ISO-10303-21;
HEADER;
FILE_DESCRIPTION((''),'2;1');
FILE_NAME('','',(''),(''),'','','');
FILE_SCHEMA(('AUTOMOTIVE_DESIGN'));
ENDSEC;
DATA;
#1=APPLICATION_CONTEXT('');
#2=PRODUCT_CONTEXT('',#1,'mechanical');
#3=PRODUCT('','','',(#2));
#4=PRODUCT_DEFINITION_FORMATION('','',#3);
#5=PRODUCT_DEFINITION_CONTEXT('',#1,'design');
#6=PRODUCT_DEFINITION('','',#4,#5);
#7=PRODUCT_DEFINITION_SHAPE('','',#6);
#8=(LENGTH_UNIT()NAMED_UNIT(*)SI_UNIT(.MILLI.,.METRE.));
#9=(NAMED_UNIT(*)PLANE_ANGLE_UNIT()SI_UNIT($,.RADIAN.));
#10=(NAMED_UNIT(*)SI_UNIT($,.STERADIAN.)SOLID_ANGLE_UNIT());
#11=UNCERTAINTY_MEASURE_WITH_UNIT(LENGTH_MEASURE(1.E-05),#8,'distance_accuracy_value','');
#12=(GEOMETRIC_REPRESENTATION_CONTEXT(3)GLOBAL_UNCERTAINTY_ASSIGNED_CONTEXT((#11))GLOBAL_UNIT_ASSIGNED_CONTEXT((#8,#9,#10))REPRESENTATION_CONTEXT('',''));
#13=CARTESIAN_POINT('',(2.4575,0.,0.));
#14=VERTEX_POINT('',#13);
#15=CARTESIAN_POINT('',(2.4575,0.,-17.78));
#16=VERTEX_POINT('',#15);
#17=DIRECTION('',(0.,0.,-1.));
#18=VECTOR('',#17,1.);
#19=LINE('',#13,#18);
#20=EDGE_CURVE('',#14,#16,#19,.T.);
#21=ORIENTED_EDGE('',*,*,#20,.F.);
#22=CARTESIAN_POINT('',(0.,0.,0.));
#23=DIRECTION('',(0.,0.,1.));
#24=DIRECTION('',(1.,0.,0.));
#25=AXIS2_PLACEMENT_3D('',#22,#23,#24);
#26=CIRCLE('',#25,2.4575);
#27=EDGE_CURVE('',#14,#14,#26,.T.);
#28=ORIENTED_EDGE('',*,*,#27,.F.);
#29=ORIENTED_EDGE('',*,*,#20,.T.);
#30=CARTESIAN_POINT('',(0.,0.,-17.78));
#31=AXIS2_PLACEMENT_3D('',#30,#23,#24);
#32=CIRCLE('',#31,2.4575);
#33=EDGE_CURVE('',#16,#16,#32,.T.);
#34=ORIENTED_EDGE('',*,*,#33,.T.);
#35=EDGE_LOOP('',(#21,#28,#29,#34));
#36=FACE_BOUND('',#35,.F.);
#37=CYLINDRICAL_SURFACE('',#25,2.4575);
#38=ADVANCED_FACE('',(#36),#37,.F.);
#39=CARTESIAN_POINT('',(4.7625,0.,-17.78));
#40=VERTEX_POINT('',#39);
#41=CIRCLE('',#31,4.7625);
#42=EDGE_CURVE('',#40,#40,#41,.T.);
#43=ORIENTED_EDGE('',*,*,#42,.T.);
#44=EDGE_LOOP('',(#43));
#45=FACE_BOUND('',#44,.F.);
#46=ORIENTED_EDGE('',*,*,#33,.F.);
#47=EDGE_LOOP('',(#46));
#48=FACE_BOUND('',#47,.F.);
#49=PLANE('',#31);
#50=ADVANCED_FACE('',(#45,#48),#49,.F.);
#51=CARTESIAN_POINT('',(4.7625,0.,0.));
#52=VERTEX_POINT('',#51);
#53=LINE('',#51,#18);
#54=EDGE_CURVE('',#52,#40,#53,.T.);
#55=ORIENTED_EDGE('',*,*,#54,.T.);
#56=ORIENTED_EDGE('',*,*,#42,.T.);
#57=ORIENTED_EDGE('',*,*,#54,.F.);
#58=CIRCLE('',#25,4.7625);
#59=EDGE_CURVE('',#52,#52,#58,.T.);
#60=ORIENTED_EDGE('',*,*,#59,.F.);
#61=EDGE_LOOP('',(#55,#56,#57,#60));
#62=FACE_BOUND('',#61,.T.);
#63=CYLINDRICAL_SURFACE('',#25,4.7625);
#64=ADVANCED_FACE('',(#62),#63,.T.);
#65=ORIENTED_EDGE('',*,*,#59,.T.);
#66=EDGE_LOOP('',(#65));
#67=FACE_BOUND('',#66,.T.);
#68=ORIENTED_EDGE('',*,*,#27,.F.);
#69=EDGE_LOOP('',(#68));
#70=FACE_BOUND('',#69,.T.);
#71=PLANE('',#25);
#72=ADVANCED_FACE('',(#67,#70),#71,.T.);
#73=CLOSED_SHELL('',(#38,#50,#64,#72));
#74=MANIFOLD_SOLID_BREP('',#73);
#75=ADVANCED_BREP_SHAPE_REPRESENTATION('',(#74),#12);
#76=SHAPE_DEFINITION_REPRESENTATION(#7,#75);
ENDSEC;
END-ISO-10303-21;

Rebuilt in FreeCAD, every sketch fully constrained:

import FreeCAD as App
import Part
import Sketcher
Q = App.Units.Quantity

doc = App.newDocument("Part")
body = doc.addObject("PartDesign::Body", "Body")

# Sketch on XY plane
sketch1 = doc.addObject("Sketcher::SketchObject", "Sketch")
body.addObject(sketch1)
sketch1.AttachmentSupport = (doc.XY_Plane, [""])
sketch1.MapMode = "FlatFace"
sketch1.addGeometry([
    Part.Circle(App.Vector(0, 0, 0), App.Vector(0, 0, 1), 4.7625),
    Part.Circle(App.Vector(0, 0, 0), App.Vector(0, 0, 1), 2.4575),
], False)
sketch1.addConstraint([
    Sketcher.Constraint("Coincident", 0, 3, -1, 1),
    Sketcher.Constraint("Coincident", 1, 3, -1, 1),
    Sketcher.Constraint("Diameter", 0, Q("0.375 in")),
    Sketcher.Constraint("Diameter", 1, Q("0.1935 in")),
])
pad1 = doc.addObject("PartDesign::Pad", "Pad")
body.addObject(pad1)
pad1.Profile = sketch1
pad1.Length = Q("0.7 in")
pad1.Reversed = True

doc.recompute()
